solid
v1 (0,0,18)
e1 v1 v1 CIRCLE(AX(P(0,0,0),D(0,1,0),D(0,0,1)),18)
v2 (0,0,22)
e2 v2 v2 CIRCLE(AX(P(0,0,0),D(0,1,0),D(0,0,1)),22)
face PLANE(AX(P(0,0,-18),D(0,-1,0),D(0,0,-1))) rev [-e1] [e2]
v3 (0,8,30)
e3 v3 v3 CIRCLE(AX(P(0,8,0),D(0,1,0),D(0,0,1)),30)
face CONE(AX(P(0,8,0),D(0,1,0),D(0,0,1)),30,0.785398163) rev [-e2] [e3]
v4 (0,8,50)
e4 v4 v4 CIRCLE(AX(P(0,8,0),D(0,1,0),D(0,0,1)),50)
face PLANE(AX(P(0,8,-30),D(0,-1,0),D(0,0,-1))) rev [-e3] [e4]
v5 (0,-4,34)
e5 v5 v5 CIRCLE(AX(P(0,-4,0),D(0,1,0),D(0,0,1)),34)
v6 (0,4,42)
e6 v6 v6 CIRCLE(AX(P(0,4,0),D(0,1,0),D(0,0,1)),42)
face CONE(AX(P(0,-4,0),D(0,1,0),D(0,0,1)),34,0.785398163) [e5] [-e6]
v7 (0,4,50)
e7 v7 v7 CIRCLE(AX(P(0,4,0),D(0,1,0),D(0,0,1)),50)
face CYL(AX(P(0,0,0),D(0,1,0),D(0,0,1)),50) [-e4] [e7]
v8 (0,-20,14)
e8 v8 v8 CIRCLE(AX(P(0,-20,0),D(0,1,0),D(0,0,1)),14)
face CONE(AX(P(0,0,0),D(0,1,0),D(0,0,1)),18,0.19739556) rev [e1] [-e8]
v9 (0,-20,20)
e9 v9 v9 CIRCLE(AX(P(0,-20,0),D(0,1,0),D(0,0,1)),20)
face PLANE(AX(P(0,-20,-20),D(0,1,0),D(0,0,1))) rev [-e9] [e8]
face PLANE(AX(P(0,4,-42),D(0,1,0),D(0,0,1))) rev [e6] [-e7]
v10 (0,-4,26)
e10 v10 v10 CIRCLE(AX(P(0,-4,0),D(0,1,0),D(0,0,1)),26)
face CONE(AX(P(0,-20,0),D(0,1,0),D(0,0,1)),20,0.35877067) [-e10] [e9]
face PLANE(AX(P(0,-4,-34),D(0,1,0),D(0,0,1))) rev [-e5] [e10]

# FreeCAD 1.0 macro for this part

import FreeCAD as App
import Part
import Sketcher
from FreeCAD import Vector
Q = App.Units.Quantity

doc = App.newDocument("Part")
body = doc.addObject("PartDesign::Body", "Body")

# Sketch on YZ plane
sketch1 = body.newObject("Sketcher::SketchObject", "Sketch")
sketch1.AttachmentSupport = (doc.getObject("YZ_Plane"), [""])
sketch1.MapMode = "FlatFace"
sketch1.addGeometry(Part.LineSegment(Vector(0, -18, 0), Vector(-20, -14, 0)), False)
sketch1.addGeometry(Part.LineSegment(Vector(-20, -14, 0), Vector(-20, -20, 0)), False)
sketch1.addGeometry(Part.LineSegment(Vector(-20, -20, 0), Vector(-4, -26, 0)), False)
sketch1.addGeometry(Part.LineSegment(Vector(-4, -26, 0), Vector(-4, -34, 0)), False)
sketch1.addGeometry(Part.LineSegment(Vector(-4, -34, 0), Vector(4, -42, 0)), False)
sketch1.addGeometry(Part.LineSegment(Vector(4, -42, 0), Vector(4, -50, 0)), False)
sketch1.addGeometry(Part.LineSegment(Vector(4, -50, 0), Vector(8, -50, 0)), False)
sketch1.addGeometry(Part.LineSegment(Vector(8, -50, 0), Vector(8, -30, 0)), False)
sketch1.addGeometry(Part.LineSegment(Vector(8, -30, 0), Vector(0, -22, 0)), False)
sketch1.addGeometry(Part.LineSegment(Vector(0, -22, 0), Vector(0, -18, 0)), False)
sketch1.addConstraint(Sketcher.Constraint("Coincident", 0, 2, 1, 1))
sketch1.addConstraint(Sketcher.Constraint("Coincident", 1, 2, 2, 1))
sketch1.addConstraint(Sketcher.Constraint("Coincident", 2, 2, 3, 1))
sketch1.addConstraint(Sketcher.Constraint("Coincident", 3, 2, 4, 1))
sketch1.addConstraint(Sketcher.Constraint("Coincident", 4, 2, 5, 1))
sketch1.addConstraint(Sketcher.Constraint("Coincident", 5, 2, 6, 1))
sketch1.addConstraint(Sketcher.Constraint("Coincident", 6, 2, 7, 1))
sketch1.addConstraint(Sketcher.Constraint("Coincident", 7, 2, 8, 1))
sketch1.addConstraint(Sketcher.Constraint("Coincident", 8, 2, 9, 1))
sketch1.addConstraint(Sketcher.Constraint("Coincident", 9, 2, 0, 1))
sketch1.addConstraint(Sketcher.Constraint("Vertical", 1))
sketch1.addConstraint(Sketcher.Constraint("Vertical", 3))
sketch1.addConstraint(Sketcher.Constraint("Vertical", 5))
sketch1.addConstraint(Sketcher.Constraint("Horizontal", 6))
sketch1.addConstraint(Sketcher.Constraint("Vertical", 7))
sketch1.addConstraint(Sketcher.Constraint("Vertical", 9))
sketch1.addConstraint(Sketcher.Constraint("PointOnObject", 8, 2, -2))
sketch1.addConstraint(Sketcher.Constraint("Parallel", 4, 8))
sketch1.addConstraint(Sketcher.Constraint("Equal", 3, 5))
sketch1.addConstraint(Sketcher.Constraint("Equal", 6, 9))
sketch1.addConstraint(Sketcher.Constraint("Equal", 4, 8))
sketch1.addConstraint(Sketcher.Constraint("DistanceX", 6, 1, 6, 2, 4.0))
sketch1.addConstraint(Sketcher.Constraint("DistanceY", 1, 2, 1, 1, 6.0))
sketch1.addConstraint(Sketcher.Constraint("DistanceY", 3, 2, 3, 1, 8.0))
sketch1.addConstraint(Sketcher.Constraint("DistanceY", 7, 1, 7, 2, 20.0))
sketch1.addConstraint(Sketcher.Constraint("Angle", 4, Q("-45 deg")))
sketch1.addConstraint(Sketcher.Constraint("DistanceX", 0, 2, -1, 1, 20.0))
sketch1.addConstraint(Sketcher.Constraint("DistanceY", 0, 2, -1, 1, 14.0))
sketch1.addConstraint(Sketcher.Constraint("DistanceY", 2, 2, -1, 1, 26.0))
sketch1.addConstraint(Sketcher.Constraint("DistanceX", -1, 1, 4, 2, 4.0))
revolution = body.newObject("PartDesign::Revolution", "Revolution")
revolution.Profile = sketch1
revolution.ReferenceAxis = (sketch1, ["H_Axis"])
revolution.Angle = 360

doc.recompute()
